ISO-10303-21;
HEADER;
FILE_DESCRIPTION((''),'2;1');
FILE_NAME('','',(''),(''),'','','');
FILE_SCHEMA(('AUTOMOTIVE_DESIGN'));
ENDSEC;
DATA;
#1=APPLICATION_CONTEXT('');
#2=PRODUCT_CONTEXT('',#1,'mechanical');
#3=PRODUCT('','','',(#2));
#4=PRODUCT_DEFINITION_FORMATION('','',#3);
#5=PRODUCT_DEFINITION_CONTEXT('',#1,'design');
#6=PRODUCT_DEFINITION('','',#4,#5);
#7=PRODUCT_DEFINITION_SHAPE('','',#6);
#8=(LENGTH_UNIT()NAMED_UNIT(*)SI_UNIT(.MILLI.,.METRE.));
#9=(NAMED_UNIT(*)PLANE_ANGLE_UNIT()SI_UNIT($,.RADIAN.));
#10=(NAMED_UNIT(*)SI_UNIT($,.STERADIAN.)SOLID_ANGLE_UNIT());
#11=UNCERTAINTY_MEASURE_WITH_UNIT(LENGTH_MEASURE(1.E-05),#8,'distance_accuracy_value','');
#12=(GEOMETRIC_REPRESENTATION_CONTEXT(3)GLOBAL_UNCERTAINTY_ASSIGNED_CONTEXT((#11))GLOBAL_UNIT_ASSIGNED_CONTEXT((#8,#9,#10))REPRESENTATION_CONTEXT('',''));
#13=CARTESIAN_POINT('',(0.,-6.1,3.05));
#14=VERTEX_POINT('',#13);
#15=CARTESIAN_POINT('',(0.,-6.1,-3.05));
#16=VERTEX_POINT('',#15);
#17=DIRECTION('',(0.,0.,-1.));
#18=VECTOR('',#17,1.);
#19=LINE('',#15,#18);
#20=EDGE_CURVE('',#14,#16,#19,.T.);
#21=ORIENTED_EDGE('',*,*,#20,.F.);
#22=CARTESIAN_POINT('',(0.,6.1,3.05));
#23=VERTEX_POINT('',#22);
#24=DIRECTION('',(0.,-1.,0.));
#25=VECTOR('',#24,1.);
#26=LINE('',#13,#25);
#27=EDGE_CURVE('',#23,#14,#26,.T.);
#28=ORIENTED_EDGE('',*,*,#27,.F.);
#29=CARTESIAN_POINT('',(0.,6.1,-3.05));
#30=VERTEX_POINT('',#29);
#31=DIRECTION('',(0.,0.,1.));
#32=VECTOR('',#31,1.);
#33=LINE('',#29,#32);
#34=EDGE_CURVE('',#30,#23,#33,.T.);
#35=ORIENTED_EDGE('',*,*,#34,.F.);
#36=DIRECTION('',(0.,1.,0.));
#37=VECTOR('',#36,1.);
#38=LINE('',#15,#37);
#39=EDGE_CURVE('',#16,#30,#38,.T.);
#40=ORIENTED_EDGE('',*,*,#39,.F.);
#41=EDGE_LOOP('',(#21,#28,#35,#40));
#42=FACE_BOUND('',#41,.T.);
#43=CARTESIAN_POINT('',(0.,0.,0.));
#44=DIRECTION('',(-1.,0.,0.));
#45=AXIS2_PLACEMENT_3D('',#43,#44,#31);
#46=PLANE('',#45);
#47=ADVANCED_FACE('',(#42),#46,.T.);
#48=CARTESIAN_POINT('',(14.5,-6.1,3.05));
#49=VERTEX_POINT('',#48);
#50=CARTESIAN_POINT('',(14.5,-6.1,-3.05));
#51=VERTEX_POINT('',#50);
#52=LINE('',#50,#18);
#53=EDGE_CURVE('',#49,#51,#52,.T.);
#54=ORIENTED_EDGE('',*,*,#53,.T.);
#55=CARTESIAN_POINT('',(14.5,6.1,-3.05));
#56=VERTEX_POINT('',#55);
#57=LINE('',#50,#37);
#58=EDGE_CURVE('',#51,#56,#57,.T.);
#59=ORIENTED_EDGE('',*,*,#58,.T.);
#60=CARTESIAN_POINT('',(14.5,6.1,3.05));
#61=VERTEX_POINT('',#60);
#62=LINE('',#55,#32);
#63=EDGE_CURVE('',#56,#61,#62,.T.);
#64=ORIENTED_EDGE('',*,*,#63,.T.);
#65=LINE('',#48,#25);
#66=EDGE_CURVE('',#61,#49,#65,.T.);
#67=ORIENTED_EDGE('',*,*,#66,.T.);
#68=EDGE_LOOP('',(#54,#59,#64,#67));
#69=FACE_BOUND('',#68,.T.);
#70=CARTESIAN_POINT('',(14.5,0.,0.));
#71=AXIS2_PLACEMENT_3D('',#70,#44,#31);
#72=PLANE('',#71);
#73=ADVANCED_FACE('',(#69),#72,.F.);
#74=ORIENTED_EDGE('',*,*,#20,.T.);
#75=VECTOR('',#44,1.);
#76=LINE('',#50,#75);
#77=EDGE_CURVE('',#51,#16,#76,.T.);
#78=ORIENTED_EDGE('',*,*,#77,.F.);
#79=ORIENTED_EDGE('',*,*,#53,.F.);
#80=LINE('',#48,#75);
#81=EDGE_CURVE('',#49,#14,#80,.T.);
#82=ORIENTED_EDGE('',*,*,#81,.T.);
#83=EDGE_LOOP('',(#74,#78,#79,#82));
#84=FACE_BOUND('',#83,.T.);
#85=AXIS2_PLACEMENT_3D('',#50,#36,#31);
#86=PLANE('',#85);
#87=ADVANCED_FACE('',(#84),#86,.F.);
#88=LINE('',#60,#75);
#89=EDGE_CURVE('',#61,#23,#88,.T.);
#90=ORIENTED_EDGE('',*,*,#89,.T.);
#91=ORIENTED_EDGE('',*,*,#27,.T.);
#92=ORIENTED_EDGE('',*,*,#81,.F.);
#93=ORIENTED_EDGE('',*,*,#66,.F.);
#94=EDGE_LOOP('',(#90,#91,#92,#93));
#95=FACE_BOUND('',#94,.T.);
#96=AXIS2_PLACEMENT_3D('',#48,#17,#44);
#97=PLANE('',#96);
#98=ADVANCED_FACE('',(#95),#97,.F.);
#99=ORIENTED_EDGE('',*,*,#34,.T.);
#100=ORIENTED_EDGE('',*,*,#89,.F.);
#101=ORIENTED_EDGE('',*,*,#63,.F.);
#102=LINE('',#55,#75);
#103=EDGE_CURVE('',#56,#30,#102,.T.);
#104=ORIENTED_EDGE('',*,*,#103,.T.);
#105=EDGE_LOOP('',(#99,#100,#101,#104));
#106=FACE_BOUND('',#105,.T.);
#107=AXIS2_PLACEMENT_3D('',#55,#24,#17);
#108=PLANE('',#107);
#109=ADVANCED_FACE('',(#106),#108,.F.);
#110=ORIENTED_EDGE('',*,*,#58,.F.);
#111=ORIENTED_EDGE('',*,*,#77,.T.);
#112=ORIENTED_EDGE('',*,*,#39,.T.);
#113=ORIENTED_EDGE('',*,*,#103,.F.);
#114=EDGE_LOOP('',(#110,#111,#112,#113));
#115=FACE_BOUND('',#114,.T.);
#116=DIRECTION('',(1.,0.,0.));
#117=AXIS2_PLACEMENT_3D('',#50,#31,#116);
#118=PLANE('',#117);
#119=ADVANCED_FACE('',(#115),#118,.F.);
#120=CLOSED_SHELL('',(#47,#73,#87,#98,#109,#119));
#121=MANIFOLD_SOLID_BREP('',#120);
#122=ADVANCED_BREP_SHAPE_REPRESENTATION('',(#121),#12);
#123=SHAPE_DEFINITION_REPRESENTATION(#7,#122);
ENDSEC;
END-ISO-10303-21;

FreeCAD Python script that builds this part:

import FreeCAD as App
import Part
import Sketcher
from FreeCAD import Vector
Q = App.Units.Quantity


def add_polygon(sketch, points):
    """Adds a closed chain of lines whose ends are joined by coincident constraints."""
    first, n = sketch.GeometryCount, len(points)
    for a, b in zip(points, points[1:] + points[:1]):
        sketch.addGeometry(Part.LineSegment(App.Vector(*a, 0), App.Vector(*b, 0)), False)
    for i in range(n):
        sketch.addConstraint(Sketcher.Constraint("Coincident", first + i, 2, first + (i + 1) % n, 1))

doc = App.newDocument("Part")
body = doc.addObject("PartDesign::Body", "Body")

sketch1 = body.newObject("Sketcher::SketchObject", "Sketch")
sketch1.AttachmentSupport = (doc.getObject("YZ_Plane"), [""])
sketch1.MapMode = "FlatFace"
add_polygon(sketch1, [(-6, 3), (-6, -3), (6, -3), (6, 3)])
sketch1.addConstraint([
    Sketcher.Constraint("Vertical", 0),
    Sketcher.Constraint("Horizontal", 1),
    Sketcher.Constraint("Vertical", 2),
    Sketcher.Constraint("Horizontal", 3),
    Sketcher.Constraint("Symmetric", 0, 2, 2, 2, -1, 1),
    Sketcher.Constraint("DistanceX", 1, 1, 1, 2, Q("12.2 mm")),
    Sketcher.Constraint("DistanceY", 0, 2, 0, 1, Q("6.1 mm")),
])
pad1 = body.newObject("PartDesign::Pad", "Pad")
pad1.Profile = sketch1
pad1.Length = 14.5

doc.recompute()
